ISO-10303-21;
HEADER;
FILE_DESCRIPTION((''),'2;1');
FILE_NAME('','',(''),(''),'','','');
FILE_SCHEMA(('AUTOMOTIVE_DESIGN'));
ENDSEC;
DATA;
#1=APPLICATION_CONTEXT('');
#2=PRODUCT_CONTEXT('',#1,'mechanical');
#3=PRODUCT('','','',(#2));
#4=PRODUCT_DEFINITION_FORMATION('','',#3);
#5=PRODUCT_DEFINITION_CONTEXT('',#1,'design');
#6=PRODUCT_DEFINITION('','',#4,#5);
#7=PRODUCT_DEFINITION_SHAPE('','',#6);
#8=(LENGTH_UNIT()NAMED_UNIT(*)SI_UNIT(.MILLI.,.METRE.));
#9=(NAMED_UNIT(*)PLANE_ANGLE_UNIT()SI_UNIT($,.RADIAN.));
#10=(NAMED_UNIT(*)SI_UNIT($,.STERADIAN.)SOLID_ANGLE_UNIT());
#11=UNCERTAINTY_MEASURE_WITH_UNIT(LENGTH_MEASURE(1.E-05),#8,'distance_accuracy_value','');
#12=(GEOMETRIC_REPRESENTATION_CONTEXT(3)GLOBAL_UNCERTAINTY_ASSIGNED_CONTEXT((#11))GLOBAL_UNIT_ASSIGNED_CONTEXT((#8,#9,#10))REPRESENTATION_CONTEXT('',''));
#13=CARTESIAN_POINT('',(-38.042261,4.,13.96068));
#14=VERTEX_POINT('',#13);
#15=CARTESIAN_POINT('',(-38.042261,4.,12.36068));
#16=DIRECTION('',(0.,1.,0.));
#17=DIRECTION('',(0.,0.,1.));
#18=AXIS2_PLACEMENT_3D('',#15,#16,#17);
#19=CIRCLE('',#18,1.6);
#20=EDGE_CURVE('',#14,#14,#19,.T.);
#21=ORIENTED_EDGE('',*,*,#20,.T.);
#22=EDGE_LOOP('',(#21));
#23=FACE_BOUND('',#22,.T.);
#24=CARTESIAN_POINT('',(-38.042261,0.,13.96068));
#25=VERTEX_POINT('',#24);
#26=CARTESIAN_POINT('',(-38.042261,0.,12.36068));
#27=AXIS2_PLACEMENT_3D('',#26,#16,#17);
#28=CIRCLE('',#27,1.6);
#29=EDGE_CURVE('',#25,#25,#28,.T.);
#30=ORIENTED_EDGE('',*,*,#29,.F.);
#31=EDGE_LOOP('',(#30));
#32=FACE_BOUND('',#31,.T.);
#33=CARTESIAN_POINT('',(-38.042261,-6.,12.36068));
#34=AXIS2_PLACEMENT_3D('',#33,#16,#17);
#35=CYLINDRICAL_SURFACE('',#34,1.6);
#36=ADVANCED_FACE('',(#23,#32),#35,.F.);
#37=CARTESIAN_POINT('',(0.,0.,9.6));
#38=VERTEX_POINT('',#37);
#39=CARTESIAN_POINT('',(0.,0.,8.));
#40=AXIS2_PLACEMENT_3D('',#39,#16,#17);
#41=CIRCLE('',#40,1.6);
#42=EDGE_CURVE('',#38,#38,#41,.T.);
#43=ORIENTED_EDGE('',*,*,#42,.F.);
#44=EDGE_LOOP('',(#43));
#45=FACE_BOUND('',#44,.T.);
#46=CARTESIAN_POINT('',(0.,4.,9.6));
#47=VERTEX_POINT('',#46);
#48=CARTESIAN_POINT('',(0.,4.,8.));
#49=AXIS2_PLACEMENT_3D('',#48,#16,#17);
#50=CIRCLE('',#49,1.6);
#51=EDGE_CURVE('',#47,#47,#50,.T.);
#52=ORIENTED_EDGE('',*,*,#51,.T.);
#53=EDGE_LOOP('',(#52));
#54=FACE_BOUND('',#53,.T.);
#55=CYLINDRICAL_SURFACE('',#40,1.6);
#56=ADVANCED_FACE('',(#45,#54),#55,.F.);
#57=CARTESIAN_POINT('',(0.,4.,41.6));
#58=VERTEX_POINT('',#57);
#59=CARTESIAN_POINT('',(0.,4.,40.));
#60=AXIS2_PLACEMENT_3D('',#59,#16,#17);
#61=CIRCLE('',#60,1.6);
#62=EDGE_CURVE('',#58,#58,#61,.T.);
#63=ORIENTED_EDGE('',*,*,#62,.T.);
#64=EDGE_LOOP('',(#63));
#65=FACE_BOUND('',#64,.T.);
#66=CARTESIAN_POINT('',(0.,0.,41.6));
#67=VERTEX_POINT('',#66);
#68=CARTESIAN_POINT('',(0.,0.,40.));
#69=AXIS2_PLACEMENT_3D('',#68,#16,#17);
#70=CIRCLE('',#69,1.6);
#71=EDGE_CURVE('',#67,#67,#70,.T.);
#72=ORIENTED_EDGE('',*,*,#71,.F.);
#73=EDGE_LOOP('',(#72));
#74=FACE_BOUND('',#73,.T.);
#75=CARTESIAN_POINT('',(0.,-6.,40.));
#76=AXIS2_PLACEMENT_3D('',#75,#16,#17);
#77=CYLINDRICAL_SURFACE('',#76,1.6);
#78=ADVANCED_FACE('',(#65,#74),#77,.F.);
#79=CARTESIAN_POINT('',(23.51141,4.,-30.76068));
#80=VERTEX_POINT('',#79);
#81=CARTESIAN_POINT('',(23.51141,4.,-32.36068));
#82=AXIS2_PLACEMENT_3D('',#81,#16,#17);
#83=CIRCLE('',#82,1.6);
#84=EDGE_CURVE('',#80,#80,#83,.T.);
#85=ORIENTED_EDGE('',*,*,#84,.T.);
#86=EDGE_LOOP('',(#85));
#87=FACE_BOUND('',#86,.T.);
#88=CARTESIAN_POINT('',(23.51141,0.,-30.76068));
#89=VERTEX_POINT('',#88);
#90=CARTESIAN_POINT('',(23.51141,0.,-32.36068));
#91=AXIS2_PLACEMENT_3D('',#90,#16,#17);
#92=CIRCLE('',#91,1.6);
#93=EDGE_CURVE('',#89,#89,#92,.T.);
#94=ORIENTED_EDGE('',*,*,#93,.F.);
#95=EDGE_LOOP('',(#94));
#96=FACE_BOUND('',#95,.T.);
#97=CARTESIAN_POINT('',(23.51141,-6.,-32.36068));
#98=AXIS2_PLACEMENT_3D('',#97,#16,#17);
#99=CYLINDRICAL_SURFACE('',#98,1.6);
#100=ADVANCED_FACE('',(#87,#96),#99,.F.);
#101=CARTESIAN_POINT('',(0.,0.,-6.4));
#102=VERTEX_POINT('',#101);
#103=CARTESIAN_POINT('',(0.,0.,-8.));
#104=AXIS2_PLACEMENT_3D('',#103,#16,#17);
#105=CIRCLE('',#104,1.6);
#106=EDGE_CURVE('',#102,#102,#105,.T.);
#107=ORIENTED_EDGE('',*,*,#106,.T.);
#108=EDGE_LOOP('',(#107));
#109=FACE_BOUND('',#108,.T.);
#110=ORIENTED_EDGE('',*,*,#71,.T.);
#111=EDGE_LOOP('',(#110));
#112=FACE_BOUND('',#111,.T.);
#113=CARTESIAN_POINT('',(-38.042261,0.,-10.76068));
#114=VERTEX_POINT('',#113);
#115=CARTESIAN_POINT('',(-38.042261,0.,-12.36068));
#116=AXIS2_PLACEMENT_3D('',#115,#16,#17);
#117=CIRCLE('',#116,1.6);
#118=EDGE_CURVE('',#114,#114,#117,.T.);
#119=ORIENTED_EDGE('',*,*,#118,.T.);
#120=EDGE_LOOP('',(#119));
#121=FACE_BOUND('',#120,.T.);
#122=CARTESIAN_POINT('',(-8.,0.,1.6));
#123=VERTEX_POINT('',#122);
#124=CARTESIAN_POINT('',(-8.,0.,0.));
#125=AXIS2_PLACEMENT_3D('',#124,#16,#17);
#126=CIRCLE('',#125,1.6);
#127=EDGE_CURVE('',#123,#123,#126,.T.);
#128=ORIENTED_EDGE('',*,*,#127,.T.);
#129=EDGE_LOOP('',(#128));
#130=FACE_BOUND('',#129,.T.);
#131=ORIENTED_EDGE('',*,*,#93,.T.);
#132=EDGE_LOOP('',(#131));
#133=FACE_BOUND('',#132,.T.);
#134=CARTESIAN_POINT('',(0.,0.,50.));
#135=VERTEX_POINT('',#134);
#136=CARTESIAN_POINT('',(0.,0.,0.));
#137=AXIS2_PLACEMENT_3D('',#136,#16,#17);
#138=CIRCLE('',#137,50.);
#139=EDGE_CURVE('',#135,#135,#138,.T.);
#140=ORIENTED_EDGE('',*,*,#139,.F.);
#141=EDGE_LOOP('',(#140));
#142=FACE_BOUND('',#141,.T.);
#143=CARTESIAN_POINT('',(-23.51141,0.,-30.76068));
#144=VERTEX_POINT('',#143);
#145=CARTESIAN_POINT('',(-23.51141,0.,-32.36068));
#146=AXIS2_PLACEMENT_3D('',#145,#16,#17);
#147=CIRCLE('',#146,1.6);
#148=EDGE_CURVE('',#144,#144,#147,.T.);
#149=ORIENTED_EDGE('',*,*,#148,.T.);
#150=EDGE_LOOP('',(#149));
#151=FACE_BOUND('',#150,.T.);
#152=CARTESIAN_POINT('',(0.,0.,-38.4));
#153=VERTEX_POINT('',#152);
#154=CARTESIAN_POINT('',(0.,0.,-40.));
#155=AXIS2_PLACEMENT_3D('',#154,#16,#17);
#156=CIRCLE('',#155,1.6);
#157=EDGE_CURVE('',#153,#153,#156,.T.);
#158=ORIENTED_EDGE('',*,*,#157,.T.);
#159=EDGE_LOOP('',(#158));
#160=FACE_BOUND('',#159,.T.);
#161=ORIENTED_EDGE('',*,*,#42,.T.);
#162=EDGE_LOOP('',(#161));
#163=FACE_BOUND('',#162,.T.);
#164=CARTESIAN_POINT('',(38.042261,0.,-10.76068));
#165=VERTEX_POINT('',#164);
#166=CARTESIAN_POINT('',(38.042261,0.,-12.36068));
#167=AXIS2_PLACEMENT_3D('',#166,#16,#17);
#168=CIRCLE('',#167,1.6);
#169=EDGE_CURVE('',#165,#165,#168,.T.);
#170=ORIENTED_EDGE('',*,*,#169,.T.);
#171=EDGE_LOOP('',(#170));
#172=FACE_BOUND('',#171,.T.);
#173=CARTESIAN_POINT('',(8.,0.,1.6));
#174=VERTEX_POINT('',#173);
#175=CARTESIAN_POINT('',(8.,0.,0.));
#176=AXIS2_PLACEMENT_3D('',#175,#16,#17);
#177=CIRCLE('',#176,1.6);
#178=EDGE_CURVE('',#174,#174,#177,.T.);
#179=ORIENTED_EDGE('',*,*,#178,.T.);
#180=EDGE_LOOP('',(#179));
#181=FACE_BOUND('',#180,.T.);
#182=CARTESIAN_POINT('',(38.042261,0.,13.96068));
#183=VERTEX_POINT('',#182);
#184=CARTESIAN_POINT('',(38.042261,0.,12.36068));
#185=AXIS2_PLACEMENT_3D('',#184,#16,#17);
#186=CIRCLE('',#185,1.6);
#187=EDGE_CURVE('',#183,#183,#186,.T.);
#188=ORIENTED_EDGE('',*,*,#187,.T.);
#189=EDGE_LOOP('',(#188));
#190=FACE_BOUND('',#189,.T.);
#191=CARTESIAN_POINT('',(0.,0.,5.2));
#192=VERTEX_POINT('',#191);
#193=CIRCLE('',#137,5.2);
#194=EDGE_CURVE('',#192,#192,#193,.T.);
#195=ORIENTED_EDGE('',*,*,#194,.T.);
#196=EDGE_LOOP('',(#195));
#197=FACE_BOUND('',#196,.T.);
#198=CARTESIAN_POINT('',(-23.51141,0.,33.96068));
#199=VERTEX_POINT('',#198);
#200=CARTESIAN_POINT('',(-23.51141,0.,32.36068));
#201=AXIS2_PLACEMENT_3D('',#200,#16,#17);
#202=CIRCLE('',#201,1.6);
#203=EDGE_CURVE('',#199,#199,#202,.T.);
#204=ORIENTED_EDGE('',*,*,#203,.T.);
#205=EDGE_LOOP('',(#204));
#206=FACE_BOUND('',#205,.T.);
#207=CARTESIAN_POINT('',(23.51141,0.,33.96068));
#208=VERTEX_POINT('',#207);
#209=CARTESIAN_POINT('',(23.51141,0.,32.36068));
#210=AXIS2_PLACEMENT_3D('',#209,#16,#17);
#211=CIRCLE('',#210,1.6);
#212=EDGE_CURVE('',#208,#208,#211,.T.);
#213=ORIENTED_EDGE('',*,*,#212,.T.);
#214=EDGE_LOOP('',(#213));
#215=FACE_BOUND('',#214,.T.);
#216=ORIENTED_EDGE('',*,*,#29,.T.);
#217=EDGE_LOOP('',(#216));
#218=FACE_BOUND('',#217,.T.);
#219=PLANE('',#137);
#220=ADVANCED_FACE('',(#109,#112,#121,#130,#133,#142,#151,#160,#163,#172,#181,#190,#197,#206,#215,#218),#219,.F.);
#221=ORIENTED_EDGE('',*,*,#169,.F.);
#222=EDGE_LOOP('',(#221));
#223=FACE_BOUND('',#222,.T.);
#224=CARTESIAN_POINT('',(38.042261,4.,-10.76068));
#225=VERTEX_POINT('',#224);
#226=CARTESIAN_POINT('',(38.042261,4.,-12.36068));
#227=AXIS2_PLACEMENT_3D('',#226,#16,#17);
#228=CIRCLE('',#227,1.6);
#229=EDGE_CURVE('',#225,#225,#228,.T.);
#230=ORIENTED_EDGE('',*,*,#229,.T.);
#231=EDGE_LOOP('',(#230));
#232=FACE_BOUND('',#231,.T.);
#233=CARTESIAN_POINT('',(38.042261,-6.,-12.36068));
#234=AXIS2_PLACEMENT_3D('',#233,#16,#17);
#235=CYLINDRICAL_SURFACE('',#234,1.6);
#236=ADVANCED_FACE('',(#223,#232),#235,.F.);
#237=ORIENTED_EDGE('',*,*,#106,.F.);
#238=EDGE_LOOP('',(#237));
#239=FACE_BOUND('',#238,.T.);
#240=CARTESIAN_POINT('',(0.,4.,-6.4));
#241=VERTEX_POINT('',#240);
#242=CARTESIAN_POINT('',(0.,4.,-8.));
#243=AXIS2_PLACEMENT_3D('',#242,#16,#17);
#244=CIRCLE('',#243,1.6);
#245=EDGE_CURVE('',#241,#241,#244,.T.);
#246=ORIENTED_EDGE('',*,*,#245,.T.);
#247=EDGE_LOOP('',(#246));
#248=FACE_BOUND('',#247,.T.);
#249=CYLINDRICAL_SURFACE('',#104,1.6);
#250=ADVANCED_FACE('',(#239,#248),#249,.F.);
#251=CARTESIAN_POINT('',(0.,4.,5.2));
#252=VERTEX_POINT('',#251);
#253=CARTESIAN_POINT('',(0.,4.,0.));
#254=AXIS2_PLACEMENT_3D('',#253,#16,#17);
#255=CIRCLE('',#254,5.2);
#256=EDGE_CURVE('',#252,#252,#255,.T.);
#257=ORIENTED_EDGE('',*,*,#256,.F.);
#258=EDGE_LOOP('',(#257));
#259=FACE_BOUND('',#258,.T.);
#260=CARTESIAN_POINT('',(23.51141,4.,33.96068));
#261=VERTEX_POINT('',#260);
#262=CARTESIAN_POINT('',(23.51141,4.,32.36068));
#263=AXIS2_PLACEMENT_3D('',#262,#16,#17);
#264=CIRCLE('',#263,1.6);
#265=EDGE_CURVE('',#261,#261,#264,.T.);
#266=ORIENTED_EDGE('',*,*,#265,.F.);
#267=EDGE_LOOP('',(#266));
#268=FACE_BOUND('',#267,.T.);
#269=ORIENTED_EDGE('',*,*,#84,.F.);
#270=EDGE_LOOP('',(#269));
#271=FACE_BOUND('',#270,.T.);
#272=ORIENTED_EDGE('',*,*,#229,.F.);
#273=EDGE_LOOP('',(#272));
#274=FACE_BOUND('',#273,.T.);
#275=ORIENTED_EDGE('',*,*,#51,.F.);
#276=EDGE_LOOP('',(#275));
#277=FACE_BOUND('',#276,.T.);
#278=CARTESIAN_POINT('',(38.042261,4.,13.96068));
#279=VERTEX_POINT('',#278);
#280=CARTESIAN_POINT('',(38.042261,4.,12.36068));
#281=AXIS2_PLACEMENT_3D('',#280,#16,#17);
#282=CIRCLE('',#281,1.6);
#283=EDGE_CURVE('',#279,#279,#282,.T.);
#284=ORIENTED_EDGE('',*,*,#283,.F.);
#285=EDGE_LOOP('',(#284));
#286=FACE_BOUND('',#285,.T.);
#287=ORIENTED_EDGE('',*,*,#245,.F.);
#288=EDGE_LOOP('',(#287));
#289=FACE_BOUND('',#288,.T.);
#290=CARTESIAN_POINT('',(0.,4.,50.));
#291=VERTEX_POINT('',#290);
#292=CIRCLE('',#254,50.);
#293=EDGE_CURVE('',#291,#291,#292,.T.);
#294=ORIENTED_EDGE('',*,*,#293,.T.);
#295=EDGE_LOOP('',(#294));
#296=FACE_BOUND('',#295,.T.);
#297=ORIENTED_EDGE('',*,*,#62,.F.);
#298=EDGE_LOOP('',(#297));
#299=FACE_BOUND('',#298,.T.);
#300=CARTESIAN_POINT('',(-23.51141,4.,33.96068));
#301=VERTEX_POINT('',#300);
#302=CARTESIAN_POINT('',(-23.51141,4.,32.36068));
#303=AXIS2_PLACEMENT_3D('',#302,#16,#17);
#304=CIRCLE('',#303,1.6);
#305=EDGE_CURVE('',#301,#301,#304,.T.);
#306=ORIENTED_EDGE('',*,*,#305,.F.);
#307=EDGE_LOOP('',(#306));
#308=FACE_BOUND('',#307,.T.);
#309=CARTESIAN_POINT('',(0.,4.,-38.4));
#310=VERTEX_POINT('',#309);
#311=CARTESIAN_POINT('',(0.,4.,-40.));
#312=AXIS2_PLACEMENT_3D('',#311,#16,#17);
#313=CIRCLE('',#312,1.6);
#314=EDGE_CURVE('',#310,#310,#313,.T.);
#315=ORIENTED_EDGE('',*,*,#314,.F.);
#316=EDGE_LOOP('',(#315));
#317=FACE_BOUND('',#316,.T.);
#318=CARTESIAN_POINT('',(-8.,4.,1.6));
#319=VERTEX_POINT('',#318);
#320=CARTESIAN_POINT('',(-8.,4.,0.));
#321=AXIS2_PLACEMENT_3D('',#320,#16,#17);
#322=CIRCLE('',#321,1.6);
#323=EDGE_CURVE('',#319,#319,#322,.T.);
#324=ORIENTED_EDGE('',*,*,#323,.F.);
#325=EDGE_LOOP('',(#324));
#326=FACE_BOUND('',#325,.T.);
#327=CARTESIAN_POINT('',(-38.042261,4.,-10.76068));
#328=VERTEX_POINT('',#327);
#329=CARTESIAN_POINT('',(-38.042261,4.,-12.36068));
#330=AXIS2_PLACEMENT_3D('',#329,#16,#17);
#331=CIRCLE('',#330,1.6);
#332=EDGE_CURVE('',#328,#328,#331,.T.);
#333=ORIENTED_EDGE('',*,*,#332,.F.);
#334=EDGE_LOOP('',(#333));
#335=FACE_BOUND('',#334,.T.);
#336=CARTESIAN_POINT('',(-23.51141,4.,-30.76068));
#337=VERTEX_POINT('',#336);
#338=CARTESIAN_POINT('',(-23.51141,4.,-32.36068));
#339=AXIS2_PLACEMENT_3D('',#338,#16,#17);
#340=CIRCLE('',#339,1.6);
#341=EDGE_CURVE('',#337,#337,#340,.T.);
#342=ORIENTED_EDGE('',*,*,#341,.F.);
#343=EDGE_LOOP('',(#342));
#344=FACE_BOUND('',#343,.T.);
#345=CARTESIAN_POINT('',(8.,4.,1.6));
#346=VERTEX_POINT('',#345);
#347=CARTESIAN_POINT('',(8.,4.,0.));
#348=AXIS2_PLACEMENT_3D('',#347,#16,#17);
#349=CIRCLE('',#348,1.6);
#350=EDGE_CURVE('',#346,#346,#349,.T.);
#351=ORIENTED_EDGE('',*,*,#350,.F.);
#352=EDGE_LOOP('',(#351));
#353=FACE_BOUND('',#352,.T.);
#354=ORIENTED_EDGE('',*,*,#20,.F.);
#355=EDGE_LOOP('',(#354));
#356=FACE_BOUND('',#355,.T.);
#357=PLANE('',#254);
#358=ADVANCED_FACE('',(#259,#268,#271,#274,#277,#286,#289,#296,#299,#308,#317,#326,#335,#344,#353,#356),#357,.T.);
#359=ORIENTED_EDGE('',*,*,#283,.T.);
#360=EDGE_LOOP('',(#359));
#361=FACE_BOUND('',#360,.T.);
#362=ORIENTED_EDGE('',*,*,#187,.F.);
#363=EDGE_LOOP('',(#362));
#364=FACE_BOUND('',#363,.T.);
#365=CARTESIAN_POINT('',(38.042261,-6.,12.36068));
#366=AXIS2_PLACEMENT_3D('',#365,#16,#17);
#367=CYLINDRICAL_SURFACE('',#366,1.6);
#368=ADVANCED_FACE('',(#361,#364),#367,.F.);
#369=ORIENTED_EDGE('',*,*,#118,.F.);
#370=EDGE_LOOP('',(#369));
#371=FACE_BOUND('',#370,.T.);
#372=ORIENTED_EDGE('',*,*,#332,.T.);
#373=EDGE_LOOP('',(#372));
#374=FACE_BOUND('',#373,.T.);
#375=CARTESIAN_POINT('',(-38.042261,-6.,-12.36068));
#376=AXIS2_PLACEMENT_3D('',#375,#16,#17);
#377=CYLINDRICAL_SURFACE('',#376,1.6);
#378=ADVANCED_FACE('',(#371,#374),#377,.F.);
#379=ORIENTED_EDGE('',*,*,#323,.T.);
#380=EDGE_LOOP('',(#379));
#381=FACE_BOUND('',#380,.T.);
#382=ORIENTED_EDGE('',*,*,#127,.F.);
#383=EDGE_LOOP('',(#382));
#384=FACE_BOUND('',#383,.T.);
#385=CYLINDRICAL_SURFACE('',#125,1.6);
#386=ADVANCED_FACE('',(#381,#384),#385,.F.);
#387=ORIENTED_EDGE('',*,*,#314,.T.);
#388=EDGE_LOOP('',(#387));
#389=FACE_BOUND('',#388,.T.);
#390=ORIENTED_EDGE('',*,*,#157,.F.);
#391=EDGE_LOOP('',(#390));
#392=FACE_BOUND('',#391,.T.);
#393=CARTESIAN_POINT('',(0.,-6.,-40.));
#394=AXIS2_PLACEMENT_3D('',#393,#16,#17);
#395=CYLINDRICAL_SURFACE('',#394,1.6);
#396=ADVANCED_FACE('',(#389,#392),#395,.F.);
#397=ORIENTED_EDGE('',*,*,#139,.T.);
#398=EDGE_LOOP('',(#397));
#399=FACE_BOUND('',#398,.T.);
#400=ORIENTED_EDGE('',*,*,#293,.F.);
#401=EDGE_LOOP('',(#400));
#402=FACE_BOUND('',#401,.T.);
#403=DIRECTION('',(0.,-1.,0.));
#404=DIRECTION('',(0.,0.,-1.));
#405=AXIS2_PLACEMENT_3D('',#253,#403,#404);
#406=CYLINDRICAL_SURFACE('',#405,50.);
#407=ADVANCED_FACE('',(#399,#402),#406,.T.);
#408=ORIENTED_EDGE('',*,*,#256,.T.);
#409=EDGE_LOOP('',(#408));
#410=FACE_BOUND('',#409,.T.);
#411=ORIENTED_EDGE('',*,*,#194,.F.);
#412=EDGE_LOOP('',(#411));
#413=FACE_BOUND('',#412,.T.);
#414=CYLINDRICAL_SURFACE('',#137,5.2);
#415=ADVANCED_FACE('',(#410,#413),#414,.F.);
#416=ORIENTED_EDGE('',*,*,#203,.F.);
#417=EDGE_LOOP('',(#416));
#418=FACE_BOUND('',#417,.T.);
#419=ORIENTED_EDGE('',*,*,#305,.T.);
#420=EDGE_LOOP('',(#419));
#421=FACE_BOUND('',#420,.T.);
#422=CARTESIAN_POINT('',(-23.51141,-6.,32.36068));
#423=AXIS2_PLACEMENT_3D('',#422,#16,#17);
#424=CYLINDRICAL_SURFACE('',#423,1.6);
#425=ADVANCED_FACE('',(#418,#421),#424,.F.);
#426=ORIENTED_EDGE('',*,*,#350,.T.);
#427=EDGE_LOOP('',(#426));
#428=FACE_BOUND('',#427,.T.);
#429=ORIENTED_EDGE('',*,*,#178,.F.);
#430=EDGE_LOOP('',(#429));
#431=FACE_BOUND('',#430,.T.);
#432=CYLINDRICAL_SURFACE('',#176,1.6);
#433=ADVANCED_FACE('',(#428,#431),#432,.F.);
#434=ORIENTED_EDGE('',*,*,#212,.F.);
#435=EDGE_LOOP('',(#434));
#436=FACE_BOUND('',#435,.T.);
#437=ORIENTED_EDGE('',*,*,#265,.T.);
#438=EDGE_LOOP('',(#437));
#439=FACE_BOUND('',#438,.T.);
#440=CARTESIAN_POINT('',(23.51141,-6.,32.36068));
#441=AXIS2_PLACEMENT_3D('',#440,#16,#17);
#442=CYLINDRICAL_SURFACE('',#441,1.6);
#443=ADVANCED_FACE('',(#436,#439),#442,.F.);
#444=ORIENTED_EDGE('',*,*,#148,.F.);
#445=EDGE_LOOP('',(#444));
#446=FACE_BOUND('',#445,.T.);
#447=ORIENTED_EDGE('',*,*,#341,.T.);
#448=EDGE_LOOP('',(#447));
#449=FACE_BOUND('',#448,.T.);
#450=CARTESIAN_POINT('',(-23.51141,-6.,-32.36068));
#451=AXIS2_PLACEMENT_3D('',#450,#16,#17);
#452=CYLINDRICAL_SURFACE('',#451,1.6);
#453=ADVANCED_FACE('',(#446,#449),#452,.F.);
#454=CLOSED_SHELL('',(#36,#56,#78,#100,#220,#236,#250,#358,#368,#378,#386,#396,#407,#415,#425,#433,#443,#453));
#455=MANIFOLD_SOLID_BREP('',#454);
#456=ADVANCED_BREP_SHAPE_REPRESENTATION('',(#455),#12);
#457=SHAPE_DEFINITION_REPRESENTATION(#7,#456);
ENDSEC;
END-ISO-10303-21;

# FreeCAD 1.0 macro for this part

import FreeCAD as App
import Part
import Sketcher
Q = App.Units.Quantity

doc = App.newDocument("Part")
body = doc.addObject("PartDesign::Body", "Body")

sketch1 = body.newObject("Sketcher::SketchObject", "Sketch")
sketch1.AttachmentSupport = (doc.getObject("XZ_Plane"), [""])
sketch1.MapMode = "FlatFace"
sketch1.addGeometry(Part.Circle(App.Vector(0, 0, 0), App.Vector(0, 0, 1), 50), False)
sketch1.addConstraint([
    Sketcher.Constraint("Coincident", 0, 3, -1, 1),
    Sketcher.Constraint("Diameter", 0, Q("100 mm")),
])
pad1 = body.newObject("PartDesign::Pad", "Pad")
pad1.Profile = sketch1
pad1.Length = 4
pad1.Reversed = True

sketch2 = body.newObject("Sketcher::SketchObject", "Sketch001")
sketch2.AttachmentSupport = (doc.getObject("XZ_Plane"), [""])
sketch2.MapMode = "FlatFace"
sketch2.AttachmentOffset = App.Placement(App.Vector(0, 0, -4), App.Rotation())
sketch2.addGeometry([
    Part.Circle(App.Vector(0, -8, 0), App.Vector(0, 0, 1), 1.6),
    Part.Circle(App.Vector(8, 0, 0), App.Vector(0, 0, 1), 1.6),
    Part.Circle(App.Vector(0, 8, 0), App.Vector(0, 0, 1), 1.6),
    Part.Circle(App.Vector(-8, 0, 0), App.Vector(0, 0, 1), 1.6),
    Part.Circle(App.Vector(0, 0, 0), App.Vector(0, 0, 1), 5.2),
], False)
sketch2.addConstraint([
    Sketcher.Constraint("Coincident", 4, 3, -1, 1),
    Sketcher.Constraint("Equal", 0, 1),
    Sketcher.Constraint("Equal", 1, 2),
    Sketcher.Constraint("Equal", 2, 3),
    Sketcher.Constraint("Symmetric", 0, 3, 2, 3, -1, 1),
    Sketcher.Constraint("Symmetric", 1, 3, 3, 3, -1, 1),
    Sketcher.Constraint("PointOnObject", 0, 3, -2),
    Sketcher.Constraint("PointOnObject", 1, 3, -1),
    Sketcher.Constraint("Diameter", 0, Q("3.2 mm")),
    Sketcher.Constraint("Diameter", 4, Q("10.4 mm")),
    Sketcher.Constraint("DistanceY", 0, 3, -1, 1, Q("8 mm")),
    Sketcher.Constraint("DistanceX", -1, 1, 1, 3, Q("8 mm")),
])
pocket1 = body.newObject("PartDesign::Pocket", "Pocket")
pocket1.Profile = sketch2
pocket1.Length = 4
pocket1.Reversed = True

sketch3 = body.newObject("Sketcher::SketchObject", "Sketch002")
sketch3.AttachmentSupport = (doc.getObject("XZ_Plane"), [""])
sketch3.MapMode = "FlatFace"
sketch3.AttachmentOffset = App.Placement(App.Vector(0, 0, -4), App.Rotation())
sketch3.addGeometry([
    Part.Circle(App.Vector(0, -40, 0), App.Vector(0, 0, 1), 1.6),
    Part.Circle(App.Vector(23.5, -32.4, 0), App.Vector(0, 0, 1), 1.6),
    Part.Circle(App.Vector(38, -12.4, 0), App.Vector(0, 0, 1), 1.6),
    Part.Circle(App.Vector(38, 12.4, 0), App.Vector(0, 0, 1), 1.6),
    Part.Circle(App.Vector(23.5, 32.4, 0), App.Vector(0, 0, 1), 1.6),
    Part.Circle(App.Vector(0, 40, 0), App.Vector(0, 0, 1), 1.6),
    Part.Circle(App.Vector(-23.5, 32.4, 0), App.Vector(0, 0, 1), 1.6),
    Part.Circle(App.Vector(-38, 12.4, 0), App.Vector(0, 0, 1), 1.6),
    Part.Circle(App.Vector(-38, -12.4, 0), App.Vector(0, 0, 1), 1.6),
    Part.Circle(App.Vector(-23.5, -32.4, 0), App.Vector(0, 0, 1), 1.6),
], False)
sketch3.addConstraint([
    Sketcher.Constraint("Equal", 0, 1),
    Sketcher.Constraint("Equal", 1, 2),
    Sketcher.Constraint("Equal", 2, 3),
    Sketcher.Constraint("Equal", 3, 4),
    Sketcher.Constraint("Equal", 4, 5),
    Sketcher.Constraint("Equal", 5, 6),
    Sketcher.Constraint("Equal", 6, 7),
    Sketcher.Constraint("Equal", 7, 8),
    Sketcher.Constraint("Equal", 8, 9),
    Sketcher.Constraint("Symmetric", 0, 3, 5, 3, -1, 1),
    Sketcher.Constraint("Symmetric", 1, 3, 6, 3, -1, 1),
    Sketcher.Constraint("Symmetric", 2, 3, 7, 3, -1, 1),
    Sketcher.Constraint("Symmetric", 3, 3, 8, 3, -1, 1),
    Sketcher.Constraint("Symmetric", 4, 3, 9, 3, -1, 1),
    Sketcher.Constraint("Symmetric", 4, 3, 6, 3, -2),
    Sketcher.Constraint("Symmetric", 3, 3, 7, 3, -2),
    Sketcher.Constraint("PointOnObject", 0, 3, -2),
    Sketcher.Constraint("Diameter", 0, Q("3.2 mm")),
    Sketcher.Constraint("DistanceY", 0, 3, -1, 1, Q("40 mm")),
    Sketcher.Constraint("DistanceY", 1, 3, 2, 3, Q("20 mm")),
    Sketcher.Constraint("DistanceX", -1, 1, 1, 3, Q("23.51141 mm")),
    Sketcher.Constraint("DistanceY", 1, 3, -1, 1, Q("32.36068 mm")),
    Sketcher.Constraint("DistanceX", -1, 1, 2, 3, Q("38.042261 mm")),
])
pocket2 = body.newObject("PartDesign::Pocket", "Pocket001")
pocket2.Profile = sketch3
pocket2.Length = 10
pocket2.Reversed = True

doc.recompute()
